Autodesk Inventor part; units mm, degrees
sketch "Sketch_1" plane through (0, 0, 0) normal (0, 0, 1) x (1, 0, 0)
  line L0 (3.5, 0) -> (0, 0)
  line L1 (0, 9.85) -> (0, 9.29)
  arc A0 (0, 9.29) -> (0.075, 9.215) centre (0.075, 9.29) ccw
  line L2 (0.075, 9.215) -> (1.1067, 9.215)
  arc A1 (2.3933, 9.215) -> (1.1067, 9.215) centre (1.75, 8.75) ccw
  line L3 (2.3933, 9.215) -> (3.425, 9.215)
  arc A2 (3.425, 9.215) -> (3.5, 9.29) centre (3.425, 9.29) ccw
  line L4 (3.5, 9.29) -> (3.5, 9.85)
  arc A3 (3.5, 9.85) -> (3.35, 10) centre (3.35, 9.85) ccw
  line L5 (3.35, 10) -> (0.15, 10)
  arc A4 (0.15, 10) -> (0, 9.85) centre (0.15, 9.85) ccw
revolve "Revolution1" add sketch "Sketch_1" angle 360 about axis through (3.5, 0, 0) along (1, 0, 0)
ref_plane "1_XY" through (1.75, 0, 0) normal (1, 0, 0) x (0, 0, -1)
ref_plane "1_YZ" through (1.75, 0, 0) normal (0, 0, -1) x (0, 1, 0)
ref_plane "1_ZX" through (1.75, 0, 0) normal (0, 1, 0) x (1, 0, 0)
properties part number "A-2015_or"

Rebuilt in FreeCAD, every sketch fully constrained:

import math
import FreeCAD as App
import Part
import Sketcher

V = App.Vector

doc = App.newDocument("Part")
body = doc.addObject("PartDesign::Body", "Body")

# Sketch on XY plane
sketch1 = body.newObject("Sketcher::SketchObject", "Sketch")
sketch1.AttachmentSupport = (doc.getObject("XY_Plane"), [""])
sketch1.MapMode = "FlatFace"
sketch1.addGeometry([
    Part.ArcOfCircle(Part.Circle(V(0.15, 9.85, 0), V(0, 0, 1), 0.15), math.radians(90), math.radians(180)),  # 0
    Part.LineSegment(V(0, 9.85, 0), V(0, 9.29, 0)),  # 1
    Part.ArcOfCircle(Part.Circle(V(0.07, 9.29, 0), V(0, 0, 1), 0.07), math.radians(180), math.radians(270)),  # 2
    Part.LineSegment(V(0.07, 9.21, 0), V(1.11, 9.21, 0)),  # 3
    Part.ArcOfCircle(Part.Circle(V(1.75, 8.75, 0), V(0, 0, 1), 0.79), math.radians(36), math.radians(144)),  # 4
    Part.LineSegment(V(2.39, 9.21, 0), V(3.42, 9.21, 0)),  # 5
    Part.ArcOfCircle(Part.Circle(V(3.42, 9.29, 0), V(0, 0, 1), 0.07), math.radians(-90), math.radians(0)),  # 6
    Part.LineSegment(V(3.5, 9.29, 0), V(3.5, 9.85, 0)),  # 7
    Part.ArcOfCircle(Part.Circle(V(3.35, 9.85, 0), V(0, 0, 1), 0.15), math.radians(0), math.radians(90)),  # 8
    Part.LineSegment(V(3.35, 10, 0), V(0.15, 10, 0)),  # 9
], False)
sketch1.addConstraint([
    Sketcher.Constraint("Tangent", 0, 2, 1, 1),
    Sketcher.Constraint("Tangent", 1, 2, 2, 1),
    Sketcher.Constraint("Tangent", 2, 2, 3, 1),
    Sketcher.Constraint("Coincident", 3, 2, 4, 2),
    Sketcher.Constraint("Coincident", 4, 1, 5, 1),
    Sketcher.Constraint("Tangent", 5, 2, 6, 1),
    Sketcher.Constraint("Tangent", 6, 2, 7, 1),
    Sketcher.Constraint("Tangent", 7, 2, 8, 1),
    Sketcher.Constraint("Tangent", 8, 2, 9, 1),
    Sketcher.Constraint("Tangent", 9, 2, 0, 1),
    Sketcher.Constraint("Vertical", 1),
    Sketcher.Constraint("Horizontal", 3),
    Sketcher.Constraint("Horizontal", 5),
    Sketcher.Constraint("Vertical", 7),
    Sketcher.Constraint("Horizontal", 9),
    Sketcher.Constraint("Equal", 2, 6),
    Sketcher.Constraint("Equal", 0, 8),
    Sketcher.Constraint("PointOnObject", 0, 2, -2),
    Sketcher.Constraint("Horizontal", 2, 3, 6, 3),
    Sketcher.Constraint("Equal", 3, 5),
    Sketcher.Constraint("Radius", 0, 0.15),
    Sketcher.Constraint("DistanceX", 9, 2, 9, 1, 3.2),
    Sketcher.Constraint("DistanceY", -1, 1, 8, 2, 10.0),
    Sketcher.Constraint("Radius", 2, 0.075),
    Sketcher.Constraint("DistanceY", 1, 2, 1, 1, 0.56),
    Sketcher.Constraint("Radius", 4, 0.7938),
    Sketcher.Constraint("DistanceY", 4, 3, 0, 3, 1.1),
])
revolution = body.newObject("PartDesign::Revolution", "Revolution")
revolution.Profile = sketch1
revolution.ReferenceAxis = (sketch1, ["H_Axis"])
revolution.Angle = 360

doc.recompute()
